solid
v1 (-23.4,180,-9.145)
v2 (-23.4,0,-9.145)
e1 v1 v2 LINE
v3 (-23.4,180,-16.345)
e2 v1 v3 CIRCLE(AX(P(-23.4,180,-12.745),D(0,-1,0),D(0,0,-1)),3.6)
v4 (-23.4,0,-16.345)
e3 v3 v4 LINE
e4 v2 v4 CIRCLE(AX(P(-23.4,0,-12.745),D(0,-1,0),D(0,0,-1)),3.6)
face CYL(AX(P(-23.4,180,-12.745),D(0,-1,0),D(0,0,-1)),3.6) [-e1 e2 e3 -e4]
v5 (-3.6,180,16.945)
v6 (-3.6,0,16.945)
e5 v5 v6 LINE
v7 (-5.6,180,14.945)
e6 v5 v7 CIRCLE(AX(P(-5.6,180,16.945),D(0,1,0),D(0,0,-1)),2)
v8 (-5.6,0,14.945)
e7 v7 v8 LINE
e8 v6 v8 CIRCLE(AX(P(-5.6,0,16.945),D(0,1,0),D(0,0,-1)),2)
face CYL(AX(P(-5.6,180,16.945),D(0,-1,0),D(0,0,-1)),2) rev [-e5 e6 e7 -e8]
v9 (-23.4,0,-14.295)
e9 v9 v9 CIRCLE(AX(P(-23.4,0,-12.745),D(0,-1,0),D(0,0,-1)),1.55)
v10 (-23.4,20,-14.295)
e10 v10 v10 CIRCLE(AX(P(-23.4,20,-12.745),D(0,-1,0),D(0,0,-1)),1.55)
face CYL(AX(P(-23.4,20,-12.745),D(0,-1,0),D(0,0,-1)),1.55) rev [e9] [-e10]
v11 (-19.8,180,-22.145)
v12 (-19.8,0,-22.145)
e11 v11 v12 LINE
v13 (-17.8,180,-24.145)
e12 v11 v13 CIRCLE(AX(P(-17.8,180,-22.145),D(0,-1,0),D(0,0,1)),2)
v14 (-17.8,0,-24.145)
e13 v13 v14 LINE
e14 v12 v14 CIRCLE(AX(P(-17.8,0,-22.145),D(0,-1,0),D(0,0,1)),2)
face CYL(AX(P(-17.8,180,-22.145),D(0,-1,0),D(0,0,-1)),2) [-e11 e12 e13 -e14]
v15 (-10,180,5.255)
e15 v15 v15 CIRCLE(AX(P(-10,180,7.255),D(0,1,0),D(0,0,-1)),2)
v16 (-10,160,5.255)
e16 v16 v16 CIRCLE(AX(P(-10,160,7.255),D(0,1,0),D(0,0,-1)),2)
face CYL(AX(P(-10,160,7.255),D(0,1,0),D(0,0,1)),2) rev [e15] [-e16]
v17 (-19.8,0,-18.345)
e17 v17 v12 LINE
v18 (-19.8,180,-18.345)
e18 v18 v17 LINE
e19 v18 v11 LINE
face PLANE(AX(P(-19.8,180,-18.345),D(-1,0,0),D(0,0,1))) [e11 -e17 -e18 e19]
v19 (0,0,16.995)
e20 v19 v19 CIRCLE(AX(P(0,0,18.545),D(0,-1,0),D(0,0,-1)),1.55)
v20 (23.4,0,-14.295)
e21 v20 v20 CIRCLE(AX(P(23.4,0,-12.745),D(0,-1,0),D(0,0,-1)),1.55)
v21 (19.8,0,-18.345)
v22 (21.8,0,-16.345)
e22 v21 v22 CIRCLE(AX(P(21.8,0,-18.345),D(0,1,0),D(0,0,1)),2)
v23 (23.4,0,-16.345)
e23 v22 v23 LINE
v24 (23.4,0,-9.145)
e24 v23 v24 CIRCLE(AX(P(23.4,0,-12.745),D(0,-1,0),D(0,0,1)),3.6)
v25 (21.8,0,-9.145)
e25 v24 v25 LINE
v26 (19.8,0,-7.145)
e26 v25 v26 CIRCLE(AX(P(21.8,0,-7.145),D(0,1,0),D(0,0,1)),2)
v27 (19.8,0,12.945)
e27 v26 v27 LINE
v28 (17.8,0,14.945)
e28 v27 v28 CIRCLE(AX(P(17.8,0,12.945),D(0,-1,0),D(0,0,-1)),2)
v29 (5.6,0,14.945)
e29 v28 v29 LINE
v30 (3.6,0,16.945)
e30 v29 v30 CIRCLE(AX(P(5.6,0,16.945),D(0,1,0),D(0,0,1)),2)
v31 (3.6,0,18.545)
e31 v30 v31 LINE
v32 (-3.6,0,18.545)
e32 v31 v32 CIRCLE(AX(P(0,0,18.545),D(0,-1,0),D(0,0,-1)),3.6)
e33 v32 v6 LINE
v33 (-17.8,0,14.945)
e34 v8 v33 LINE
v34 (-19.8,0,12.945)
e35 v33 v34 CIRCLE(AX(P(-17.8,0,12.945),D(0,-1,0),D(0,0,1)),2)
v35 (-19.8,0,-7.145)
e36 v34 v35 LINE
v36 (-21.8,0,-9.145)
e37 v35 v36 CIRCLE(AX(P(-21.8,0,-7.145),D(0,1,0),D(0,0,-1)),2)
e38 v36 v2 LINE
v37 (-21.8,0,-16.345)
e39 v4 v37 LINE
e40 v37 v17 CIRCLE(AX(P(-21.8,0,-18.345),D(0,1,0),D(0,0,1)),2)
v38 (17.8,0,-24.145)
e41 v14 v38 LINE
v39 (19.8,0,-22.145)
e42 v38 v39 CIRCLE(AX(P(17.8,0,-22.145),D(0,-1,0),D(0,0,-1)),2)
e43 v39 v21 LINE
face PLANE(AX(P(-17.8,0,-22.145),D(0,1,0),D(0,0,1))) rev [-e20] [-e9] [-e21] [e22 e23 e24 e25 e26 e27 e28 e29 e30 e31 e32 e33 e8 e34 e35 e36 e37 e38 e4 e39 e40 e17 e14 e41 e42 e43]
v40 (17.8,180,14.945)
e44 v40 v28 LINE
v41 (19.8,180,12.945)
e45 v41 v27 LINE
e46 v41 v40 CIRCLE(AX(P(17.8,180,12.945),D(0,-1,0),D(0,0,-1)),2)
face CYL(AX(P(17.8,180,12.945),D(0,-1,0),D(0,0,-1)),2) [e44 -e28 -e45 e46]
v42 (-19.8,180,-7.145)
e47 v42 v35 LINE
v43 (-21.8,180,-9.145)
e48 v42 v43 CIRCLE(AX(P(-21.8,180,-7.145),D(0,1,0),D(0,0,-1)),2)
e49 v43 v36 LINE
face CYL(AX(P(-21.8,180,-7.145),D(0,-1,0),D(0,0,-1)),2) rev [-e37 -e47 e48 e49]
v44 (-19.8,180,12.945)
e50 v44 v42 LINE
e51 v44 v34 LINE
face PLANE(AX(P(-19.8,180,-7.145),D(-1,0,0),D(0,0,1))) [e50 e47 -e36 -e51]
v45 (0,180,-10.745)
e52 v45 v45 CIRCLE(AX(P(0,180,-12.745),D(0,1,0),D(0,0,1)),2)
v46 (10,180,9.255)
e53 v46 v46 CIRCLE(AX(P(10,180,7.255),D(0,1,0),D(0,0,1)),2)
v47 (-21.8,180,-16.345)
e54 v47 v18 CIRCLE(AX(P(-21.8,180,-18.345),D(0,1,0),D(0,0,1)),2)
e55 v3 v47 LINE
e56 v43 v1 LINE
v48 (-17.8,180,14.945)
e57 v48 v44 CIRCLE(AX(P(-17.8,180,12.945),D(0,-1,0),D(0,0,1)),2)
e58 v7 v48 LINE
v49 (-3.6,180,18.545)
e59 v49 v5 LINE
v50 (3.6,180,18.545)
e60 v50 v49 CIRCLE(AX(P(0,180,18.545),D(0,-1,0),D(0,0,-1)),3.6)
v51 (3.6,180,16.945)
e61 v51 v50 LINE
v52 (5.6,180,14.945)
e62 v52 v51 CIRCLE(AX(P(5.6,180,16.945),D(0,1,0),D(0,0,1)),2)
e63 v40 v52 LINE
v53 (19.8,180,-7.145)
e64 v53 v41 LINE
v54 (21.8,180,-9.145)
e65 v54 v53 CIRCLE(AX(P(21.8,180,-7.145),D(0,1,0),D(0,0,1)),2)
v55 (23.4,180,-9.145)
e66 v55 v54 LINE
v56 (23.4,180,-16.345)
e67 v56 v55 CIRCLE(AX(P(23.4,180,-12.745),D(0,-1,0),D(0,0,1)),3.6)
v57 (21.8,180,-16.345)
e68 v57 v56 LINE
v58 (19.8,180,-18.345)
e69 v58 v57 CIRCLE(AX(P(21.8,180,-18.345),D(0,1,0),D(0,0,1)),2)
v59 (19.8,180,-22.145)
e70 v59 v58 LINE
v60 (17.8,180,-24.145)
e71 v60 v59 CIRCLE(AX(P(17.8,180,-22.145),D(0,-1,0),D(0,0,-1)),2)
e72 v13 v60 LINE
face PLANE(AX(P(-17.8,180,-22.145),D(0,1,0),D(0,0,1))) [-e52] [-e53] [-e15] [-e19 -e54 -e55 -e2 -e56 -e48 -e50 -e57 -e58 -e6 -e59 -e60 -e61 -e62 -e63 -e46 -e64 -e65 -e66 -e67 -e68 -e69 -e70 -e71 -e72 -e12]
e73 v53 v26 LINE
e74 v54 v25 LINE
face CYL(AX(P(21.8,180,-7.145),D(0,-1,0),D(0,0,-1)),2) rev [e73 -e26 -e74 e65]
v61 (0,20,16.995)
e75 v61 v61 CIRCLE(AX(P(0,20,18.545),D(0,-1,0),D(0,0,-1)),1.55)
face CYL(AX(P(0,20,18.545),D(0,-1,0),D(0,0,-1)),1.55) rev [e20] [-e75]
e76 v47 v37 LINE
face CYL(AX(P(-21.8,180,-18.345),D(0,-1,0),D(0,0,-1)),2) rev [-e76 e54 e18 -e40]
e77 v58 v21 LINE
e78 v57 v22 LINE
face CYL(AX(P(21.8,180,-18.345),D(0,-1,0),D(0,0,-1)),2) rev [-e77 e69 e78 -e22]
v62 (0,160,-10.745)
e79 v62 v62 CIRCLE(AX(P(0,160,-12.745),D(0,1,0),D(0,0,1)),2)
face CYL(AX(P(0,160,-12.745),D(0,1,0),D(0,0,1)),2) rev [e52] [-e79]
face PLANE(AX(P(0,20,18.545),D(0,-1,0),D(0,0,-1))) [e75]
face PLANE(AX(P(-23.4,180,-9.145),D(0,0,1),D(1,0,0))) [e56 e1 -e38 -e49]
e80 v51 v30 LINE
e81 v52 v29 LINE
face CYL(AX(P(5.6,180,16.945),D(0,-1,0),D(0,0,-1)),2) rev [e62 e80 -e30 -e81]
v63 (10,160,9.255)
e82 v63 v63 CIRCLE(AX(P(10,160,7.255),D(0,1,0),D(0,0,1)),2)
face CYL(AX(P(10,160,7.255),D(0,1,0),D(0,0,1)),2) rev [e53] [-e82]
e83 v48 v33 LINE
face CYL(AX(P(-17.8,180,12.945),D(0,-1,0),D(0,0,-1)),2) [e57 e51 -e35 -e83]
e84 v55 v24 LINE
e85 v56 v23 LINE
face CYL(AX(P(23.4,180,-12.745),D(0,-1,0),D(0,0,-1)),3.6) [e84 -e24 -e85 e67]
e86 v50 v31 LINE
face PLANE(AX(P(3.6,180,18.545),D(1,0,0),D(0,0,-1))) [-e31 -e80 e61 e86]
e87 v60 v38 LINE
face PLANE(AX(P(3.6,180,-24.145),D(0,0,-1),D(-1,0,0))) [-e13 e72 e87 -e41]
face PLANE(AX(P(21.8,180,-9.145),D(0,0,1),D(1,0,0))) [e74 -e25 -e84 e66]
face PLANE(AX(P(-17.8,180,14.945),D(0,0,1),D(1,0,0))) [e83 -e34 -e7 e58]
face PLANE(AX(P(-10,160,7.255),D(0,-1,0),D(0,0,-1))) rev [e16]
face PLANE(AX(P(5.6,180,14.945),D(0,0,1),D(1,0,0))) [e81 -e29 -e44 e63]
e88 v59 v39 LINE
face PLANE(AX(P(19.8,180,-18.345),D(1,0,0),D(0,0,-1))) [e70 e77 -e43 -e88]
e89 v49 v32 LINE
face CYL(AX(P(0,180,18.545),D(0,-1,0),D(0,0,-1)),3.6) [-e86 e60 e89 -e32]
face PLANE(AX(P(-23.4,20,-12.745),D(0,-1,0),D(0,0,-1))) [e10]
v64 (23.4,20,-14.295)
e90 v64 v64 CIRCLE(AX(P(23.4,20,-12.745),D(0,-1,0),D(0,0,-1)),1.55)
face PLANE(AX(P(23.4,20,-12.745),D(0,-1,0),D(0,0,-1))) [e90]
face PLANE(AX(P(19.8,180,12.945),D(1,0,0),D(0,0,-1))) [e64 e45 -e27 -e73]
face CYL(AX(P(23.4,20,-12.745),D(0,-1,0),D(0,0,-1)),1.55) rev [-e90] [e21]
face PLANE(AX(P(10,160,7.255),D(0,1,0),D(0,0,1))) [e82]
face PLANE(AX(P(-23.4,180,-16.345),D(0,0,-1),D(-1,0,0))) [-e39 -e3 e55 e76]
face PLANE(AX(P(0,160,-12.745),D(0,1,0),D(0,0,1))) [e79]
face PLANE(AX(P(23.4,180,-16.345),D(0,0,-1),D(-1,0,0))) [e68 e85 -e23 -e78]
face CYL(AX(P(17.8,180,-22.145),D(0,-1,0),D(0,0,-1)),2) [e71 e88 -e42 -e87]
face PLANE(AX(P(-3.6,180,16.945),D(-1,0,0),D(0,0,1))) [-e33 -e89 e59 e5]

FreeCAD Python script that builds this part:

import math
import FreeCAD as App
import Part
import Sketcher

V = App.Vector
Q = App.Units.Quantity

doc = App.newDocument("Part")
body = doc.addObject("PartDesign::Body", "Body")

# Sketch on XZ plane
sketch1 = body.newObject("Sketcher::SketchObject", "Sketch")
sketch1.AttachmentSupport = (doc.getObject("XZ_Plane"), [""])
sketch1.MapMode = "FlatFace"
sketch1.addGeometry([
    Part.LineSegment(V(-17.8, -24.1, 0), V(17.8, -24.1, 0)),  # 0
    Part.ArcOfCircle(Part.Circle(V(17.8, -22.1, 0), V(0, 0, 1), 2), math.radians(-90), math.radians(0)),  # 1
    Part.LineSegment(V(19.8, -22.1, 0), V(19.8, -18.3, 0)),  # 2
    Part.ArcOfCircle(Part.Circle(V(21.8, -18.3, 0), V(0, 0, 1), 2), math.radians(90), math.radians(180)),  # 3
    Part.LineSegment(V(21.8, -16.3, 0), V(23.4, -16.3, 0)),  # 4
    Part.ArcOfCircle(Part.Circle(V(23.4, -12.7, 0), V(0, 0, 1), 3.6), math.radians(-90), math.radians(90)),  # 5
    Part.LineSegment(V(23.4, -9.1, 0), V(21.8, -9.1, 0)),  # 6
    Part.ArcOfCircle(Part.Circle(V(21.8, -7.1, 0), V(0, 0, 1), 2), math.radians(-180), math.radians(-90)),  # 7
    Part.LineSegment(V(19.8, -7.1, 0), V(19.8, 12.9, 0)),  # 8
    Part.ArcOfCircle(Part.Circle(V(17.8, 12.9, 0), V(0, 0, 1), 2), math.radians(0), math.radians(90)),  # 9
    Part.LineSegment(V(17.8, 14.9, 0), V(5.6, 14.9, 0)),  # 10
    Part.ArcOfCircle(Part.Circle(V(5.6, 16.9, 0), V(0, 0, 1), 2), math.radians(-180), math.radians(-90)),  # 11
    Part.LineSegment(V(3.6, 16.9, 0), V(3.6, 18.5, 0)),  # 12
    Part.ArcOfCircle(Part.Circle(V(0, 18.5, 0), V(0, 0, 1), 3.6), math.radians(0), math.radians(180)),  # 13
    Part.LineSegment(V(-3.6, 18.5, 0), V(-3.6, 16.9, 0)),  # 14
    Part.ArcOfCircle(Part.Circle(V(-5.6, 16.9, 0), V(0, 0, 1), 2), math.radians(-90), math.radians(0)),  # 15
    Part.LineSegment(V(-5.6, 14.9, 0), V(-17.8, 14.9, 0)),  # 16
    Part.ArcOfCircle(Part.Circle(V(-17.8, 12.9, 0), V(0, 0, 1), 2), math.radians(90), math.radians(180)),  # 17
    Part.LineSegment(V(-19.8, 12.9, 0), V(-19.8, -7.1, 0)),  # 18
    Part.ArcOfCircle(Part.Circle(V(-21.8, -7.1, 0), V(0, 0, 1), 2), math.radians(-90), math.radians(0)),  # 19
    Part.LineSegment(V(-21.8, -9.1, 0), V(-23.4, -9.1, 0)),  # 20
    Part.ArcOfCircle(Part.Circle(V(-23.4, -12.7, 0), V(0, 0, 1), 3.6), math.radians(90), math.radians(270)),  # 21
    Part.LineSegment(V(-23.4, -16.3, 0), V(-21.8, -16.3, 0)),  # 22
    Part.ArcOfCircle(Part.Circle(V(-21.8, -18.3, 0), V(0, 0, 1), 2), math.radians(0), math.radians(90)),  # 23
    Part.LineSegment(V(-19.8, -18.3, 0), V(-19.8, -22.1, 0)),  # 24
    Part.ArcOfCircle(Part.Circle(V(-17.8, -22.1, 0), V(0, 0, 1), 2), math.radians(-180), math.radians(-90)),  # 25
], False)
sketch1.addConstraint([
    Sketcher.Constraint("Tangent", 0, 2, 1, 1),
    Sketcher.Constraint("Tangent", 1, 2, 2, 1),
    Sketcher.Constraint("Tangent", 2, 2, 3, 2),
    Sketcher.Constraint("Tangent", 3, 1, 4, 1),
    Sketcher.Constraint("Tangent", 4, 2, 5, 1),
    Sketcher.Constraint("Tangent", 5, 2, 6, 1),
    Sketcher.Constraint("Tangent", 6, 2, 7, 2),
    Sketcher.Constraint("Tangent", 7, 1, 8, 1),
    Sketcher.Constraint("Tangent", 8, 2, 9, 1),
    Sketcher.Constraint("Tangent", 9, 2, 10, 1),
    Sketcher.Constraint("Tangent", 10, 2, 11, 2),
    Sketcher.Constraint("Tangent", 11, 1, 12, 1),
    Sketcher.Constraint("Tangent", 12, 2, 13, 1),
    Sketcher.Constraint("Tangent", 13, 2, 14, 1),
    Sketcher.Constraint("Tangent", 14, 2, 15, 2),
    Sketcher.Constraint("Tangent", 15, 1, 16, 1),
    Sketcher.Constraint("Tangent", 16, 2, 17, 1),
    Sketcher.Constraint("Tangent", 17, 2, 18, 1),
    Sketcher.Constraint("Tangent", 18, 2, 19, 2),
    Sketcher.Constraint("Tangent", 19, 1, 20, 1),
    Sketcher.Constraint("Tangent", 20, 2, 21, 1),
    Sketcher.Constraint("Tangent", 21, 2, 22, 1),
    Sketcher.Constraint("Tangent", 22, 2, 23, 2),
    Sketcher.Constraint("Tangent", 23, 1, 24, 1),
    Sketcher.Constraint("Tangent", 24, 2, 25, 1),
    Sketcher.Constraint("Tangent", 25, 2, 0, 1),
    Sketcher.Constraint("Horizontal", 0),
    Sketcher.Constraint("Vertical", 2),
    Sketcher.Constraint("Horizontal", 4),
    Sketcher.Constraint("Horizontal", 6),
    Sketcher.Constraint("Vertical", 8),
    Sketcher.Constraint("Horizontal", 10),
    Sketcher.Constraint("Vertical", 12),
    Sketcher.Constraint("Vertical", 14),
    Sketcher.Constraint("Horizontal", 16),
    Sketcher.Constraint("Vertical", 18),
    Sketcher.Constraint("Horizontal", 20),
    Sketcher.Constraint("Horizontal", 22),
    Sketcher.Constraint("Vertical", 24),
    Sketcher.Constraint("Equal", 1, 3),
    Sketcher.Constraint("Equal", 3, 7),
    Sketcher.Constraint("Equal", 7, 9),
    Sketcher.Constraint("Equal", 9, 11),
    Sketcher.Constraint("Equal", 5, 13),
    Sketcher.Constraint("Equal", 11, 15),
    Sketcher.Constraint("Equal", 15, 17),
    Sketcher.Constraint("Equal", 17, 19),
    Sketcher.Constraint("Equal", 13, 21),
    Sketcher.Constraint("Equal", 19, 23),
    Sketcher.Constraint("Equal", 23, 25),
    Sketcher.Constraint("Symmetric", 11, 3, 15, 3, -2),
    Sketcher.Constraint("Symmetric", 7, 3, 19, 3, -2),
    Sketcher.Constraint("Vertical", 3, 3, 7, 3),
    Sketcher.Constraint("Vertical", 19, 3, 23, 3),
    Sketcher.Constraint("Equal", 6, 20),
    Sketcher.Constraint("Equal", 22, 12),
    Sketcher.Constraint("Radius", 1, Q("2 mm")),
    Sketcher.Constraint("Radius", 5, Q("3.6 mm")),
    Sketcher.Constraint("DistanceX", 0, 1, 0, 2, Q("35.6 mm")),
    Sketcher.Constraint("DistanceX", 4, 1, 4, 2, Q("1.6 mm")),
    Sketcher.Constraint("DistanceY", 2, 1, 2, 2, Q("3.8 mm")),
    Sketcher.Constraint("DistanceY", 8, 1, 8, 2, Q("20.09 mm")),
    Sketcher.Constraint("DistanceY", 1, 3, -1, 1, Q("22.145 mm")),
])
pad1 = body.newObject("PartDesign::Pad", "Pad")
pad1.Profile = sketch1
pad1.Length = 180
pad1.Reversed = True

# Sketch on XZ plane
sketch2 = body.newObject("Sketcher::SketchObject", "Sketch001")
sketch2.AttachmentSupport = (doc.getObject("XZ_Plane"), [""])
sketch2.MapMode = "FlatFace"
sketch2.addGeometry([
    Part.Circle(V(0, 18.5, 0), V(0, 0, 1), 1.6),
    Part.Circle(V(-23.4, -12.7, 0), V(0, 0, 1), 1.6),
    Part.Circle(V(23.4, -12.7, 0), V(0, 0, 1), 1.6),
], False)
sketch2.addConstraint([
    Sketcher.Constraint("Equal", 0, 1),
    Sketcher.Constraint("Equal", 1, 2),
    Sketcher.Constraint("Symmetric", 1, 3, 2, 3, -2),
    Sketcher.Constraint("PointOnObject", 0, 3, -2),
    Sketcher.Constraint("Diameter", 0, Q("3.1 mm")),
    Sketcher.Constraint("DistanceX", 1, 3, -1, 1, Q("23.4 mm")),
    Sketcher.Constraint("DistanceY", 1, 3, 0, 3, Q("31.29 mm")),
    Sketcher.Constraint("DistanceY", -1, 1, 0, 3, Q("18.545 mm")),
])
pocket1 = body.newObject("PartDesign::Pocket", "Pocket")
pocket1.Profile = sketch2
pocket1.Length = 20

# Sketch on XZ plane
sketch3 = body.newObject("Sketcher::SketchObject", "Sketch002")
sketch3.AttachmentSupport = (doc.getObject("XZ_Plane"), [""])
sketch3.MapMode = "FlatFace"
sketch3.AttachmentOffset = App.Placement(V(0, 0, -180), App.Rotation())
sketch3.addGeometry([
    Part.Circle(V(0, -12.7, 0), V(0, 0, 1), 2),
    Part.Circle(V(10, 7.3, 0), V(0, 0, 1), 2),
    Part.Circle(V(-10, 7.3, 0), V(0, 0, 1), 2),
], False)
sketch3.addConstraint([
    Sketcher.Constraint("Equal", 0, 1),
    Sketcher.Constraint("Equal", 1, 2),
    Sketcher.Constraint("Symmetric", 1, 3, 2, 3, -2),
    Sketcher.Constraint("PointOnObject", 0, 3, -2),
    Sketcher.Constraint("Diameter", 0, Q("4 mm")),
    Sketcher.Constraint("DistanceX", -1, 1, 1, 3, Q("10 mm")),
    Sketcher.Constraint("DistanceY", 0, 3, 1, 3, Q("20 mm")),
    Sketcher.Constraint("DistanceY", 0, 3, -1, 1, Q("12.745 mm")),
])
pocket2 = body.newObject("PartDesign::Pocket", "Pocket001")
pocket2.Profile = sketch3
pocket2.Length = 20
pocket2.Reversed = True

doc.recompute()
